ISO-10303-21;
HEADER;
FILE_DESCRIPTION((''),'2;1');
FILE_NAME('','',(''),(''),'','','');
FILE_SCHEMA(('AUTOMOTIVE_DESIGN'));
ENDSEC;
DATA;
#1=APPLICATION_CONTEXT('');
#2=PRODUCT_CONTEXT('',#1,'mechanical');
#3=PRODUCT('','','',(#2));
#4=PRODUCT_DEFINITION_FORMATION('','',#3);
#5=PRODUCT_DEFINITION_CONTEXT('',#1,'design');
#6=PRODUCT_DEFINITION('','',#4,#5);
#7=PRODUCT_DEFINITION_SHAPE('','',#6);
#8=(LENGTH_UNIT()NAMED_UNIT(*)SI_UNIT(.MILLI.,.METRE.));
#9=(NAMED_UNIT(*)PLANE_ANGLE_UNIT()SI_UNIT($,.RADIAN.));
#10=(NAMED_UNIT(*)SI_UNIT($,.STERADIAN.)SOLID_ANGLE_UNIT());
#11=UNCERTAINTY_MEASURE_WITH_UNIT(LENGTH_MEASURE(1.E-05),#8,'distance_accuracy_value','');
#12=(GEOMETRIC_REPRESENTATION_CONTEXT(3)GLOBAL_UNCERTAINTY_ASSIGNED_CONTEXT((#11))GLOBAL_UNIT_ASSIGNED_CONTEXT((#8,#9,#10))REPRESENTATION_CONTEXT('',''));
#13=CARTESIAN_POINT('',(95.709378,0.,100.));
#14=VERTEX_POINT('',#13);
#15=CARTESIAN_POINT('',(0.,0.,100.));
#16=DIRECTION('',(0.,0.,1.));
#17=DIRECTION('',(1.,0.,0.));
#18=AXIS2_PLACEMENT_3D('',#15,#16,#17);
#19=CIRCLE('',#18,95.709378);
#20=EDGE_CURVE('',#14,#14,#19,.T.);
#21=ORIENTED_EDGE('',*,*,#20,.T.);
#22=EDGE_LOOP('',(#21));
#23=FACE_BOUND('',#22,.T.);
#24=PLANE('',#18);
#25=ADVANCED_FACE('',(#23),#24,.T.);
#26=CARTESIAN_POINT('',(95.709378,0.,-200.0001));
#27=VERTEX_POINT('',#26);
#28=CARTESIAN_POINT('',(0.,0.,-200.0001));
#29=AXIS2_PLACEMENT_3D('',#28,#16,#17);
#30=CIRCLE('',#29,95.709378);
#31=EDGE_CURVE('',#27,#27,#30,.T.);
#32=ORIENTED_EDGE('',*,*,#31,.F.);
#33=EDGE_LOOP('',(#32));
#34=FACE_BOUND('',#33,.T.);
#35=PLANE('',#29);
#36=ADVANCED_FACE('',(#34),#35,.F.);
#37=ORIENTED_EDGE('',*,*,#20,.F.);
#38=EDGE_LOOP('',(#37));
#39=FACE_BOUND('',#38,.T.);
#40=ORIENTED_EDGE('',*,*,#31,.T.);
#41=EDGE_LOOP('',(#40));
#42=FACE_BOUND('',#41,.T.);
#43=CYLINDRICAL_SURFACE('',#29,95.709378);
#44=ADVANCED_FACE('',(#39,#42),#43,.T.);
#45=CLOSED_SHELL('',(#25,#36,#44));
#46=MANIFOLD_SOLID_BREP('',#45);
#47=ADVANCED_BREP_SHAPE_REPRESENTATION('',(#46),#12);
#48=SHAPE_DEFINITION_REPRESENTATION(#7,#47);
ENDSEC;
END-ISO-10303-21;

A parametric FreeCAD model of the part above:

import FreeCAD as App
import Part
import Sketcher

V = App.Vector

doc = App.newDocument("Part")
params = doc.addObject("Spreadsheet::Sheet", "Params")
for row, (alias, value) in enumerate([
    ("pad1_length", "300.0001 mm"),
], start=1):
    params.set(f"A{row}", alias)
    params.set(f"B{row}", "=" + value)
    params.setAlias(f"B{row}", alias)

body = doc.addObject("PartDesign::Body", "Body")

# Sketch on XY plane
sketch1 = body.newObject("Sketcher::SketchObject", "Sketch")
sketch1.AttachmentSupport = (doc.getObject("XY_Plane"), [""])
sketch1.MapMode = "FlatFace"
sketch1.addGeometry(Part.Circle(V(0, 0, 0), V(0, 0, 1), 95.709378), False)
sketch1.addConstraint([
    Sketcher.Constraint("Coincident", 0, 3, -1, 1),
    Sketcher.Constraint("Diameter", 0, 191.418755),
])
pad1 = body.newObject("PartDesign::Pad", "Pad")
pad1.Profile = sketch1
pad1.setExpression("Length", "Params.pad1_length")
pad1.Reversed = True
body2 = doc.addObject("PartDesign::Body", "Body001")
doc.recompute()

body.Placement = App.Placement(V(0, 0, 100), App.Rotation(V(0, 0, 1), 0))
boolean = body2.newObject("PartDesign::Boolean", "Boolean")
boolean.Type = "Fuse"
boolean.addObjects([body])

doc.recompute()
